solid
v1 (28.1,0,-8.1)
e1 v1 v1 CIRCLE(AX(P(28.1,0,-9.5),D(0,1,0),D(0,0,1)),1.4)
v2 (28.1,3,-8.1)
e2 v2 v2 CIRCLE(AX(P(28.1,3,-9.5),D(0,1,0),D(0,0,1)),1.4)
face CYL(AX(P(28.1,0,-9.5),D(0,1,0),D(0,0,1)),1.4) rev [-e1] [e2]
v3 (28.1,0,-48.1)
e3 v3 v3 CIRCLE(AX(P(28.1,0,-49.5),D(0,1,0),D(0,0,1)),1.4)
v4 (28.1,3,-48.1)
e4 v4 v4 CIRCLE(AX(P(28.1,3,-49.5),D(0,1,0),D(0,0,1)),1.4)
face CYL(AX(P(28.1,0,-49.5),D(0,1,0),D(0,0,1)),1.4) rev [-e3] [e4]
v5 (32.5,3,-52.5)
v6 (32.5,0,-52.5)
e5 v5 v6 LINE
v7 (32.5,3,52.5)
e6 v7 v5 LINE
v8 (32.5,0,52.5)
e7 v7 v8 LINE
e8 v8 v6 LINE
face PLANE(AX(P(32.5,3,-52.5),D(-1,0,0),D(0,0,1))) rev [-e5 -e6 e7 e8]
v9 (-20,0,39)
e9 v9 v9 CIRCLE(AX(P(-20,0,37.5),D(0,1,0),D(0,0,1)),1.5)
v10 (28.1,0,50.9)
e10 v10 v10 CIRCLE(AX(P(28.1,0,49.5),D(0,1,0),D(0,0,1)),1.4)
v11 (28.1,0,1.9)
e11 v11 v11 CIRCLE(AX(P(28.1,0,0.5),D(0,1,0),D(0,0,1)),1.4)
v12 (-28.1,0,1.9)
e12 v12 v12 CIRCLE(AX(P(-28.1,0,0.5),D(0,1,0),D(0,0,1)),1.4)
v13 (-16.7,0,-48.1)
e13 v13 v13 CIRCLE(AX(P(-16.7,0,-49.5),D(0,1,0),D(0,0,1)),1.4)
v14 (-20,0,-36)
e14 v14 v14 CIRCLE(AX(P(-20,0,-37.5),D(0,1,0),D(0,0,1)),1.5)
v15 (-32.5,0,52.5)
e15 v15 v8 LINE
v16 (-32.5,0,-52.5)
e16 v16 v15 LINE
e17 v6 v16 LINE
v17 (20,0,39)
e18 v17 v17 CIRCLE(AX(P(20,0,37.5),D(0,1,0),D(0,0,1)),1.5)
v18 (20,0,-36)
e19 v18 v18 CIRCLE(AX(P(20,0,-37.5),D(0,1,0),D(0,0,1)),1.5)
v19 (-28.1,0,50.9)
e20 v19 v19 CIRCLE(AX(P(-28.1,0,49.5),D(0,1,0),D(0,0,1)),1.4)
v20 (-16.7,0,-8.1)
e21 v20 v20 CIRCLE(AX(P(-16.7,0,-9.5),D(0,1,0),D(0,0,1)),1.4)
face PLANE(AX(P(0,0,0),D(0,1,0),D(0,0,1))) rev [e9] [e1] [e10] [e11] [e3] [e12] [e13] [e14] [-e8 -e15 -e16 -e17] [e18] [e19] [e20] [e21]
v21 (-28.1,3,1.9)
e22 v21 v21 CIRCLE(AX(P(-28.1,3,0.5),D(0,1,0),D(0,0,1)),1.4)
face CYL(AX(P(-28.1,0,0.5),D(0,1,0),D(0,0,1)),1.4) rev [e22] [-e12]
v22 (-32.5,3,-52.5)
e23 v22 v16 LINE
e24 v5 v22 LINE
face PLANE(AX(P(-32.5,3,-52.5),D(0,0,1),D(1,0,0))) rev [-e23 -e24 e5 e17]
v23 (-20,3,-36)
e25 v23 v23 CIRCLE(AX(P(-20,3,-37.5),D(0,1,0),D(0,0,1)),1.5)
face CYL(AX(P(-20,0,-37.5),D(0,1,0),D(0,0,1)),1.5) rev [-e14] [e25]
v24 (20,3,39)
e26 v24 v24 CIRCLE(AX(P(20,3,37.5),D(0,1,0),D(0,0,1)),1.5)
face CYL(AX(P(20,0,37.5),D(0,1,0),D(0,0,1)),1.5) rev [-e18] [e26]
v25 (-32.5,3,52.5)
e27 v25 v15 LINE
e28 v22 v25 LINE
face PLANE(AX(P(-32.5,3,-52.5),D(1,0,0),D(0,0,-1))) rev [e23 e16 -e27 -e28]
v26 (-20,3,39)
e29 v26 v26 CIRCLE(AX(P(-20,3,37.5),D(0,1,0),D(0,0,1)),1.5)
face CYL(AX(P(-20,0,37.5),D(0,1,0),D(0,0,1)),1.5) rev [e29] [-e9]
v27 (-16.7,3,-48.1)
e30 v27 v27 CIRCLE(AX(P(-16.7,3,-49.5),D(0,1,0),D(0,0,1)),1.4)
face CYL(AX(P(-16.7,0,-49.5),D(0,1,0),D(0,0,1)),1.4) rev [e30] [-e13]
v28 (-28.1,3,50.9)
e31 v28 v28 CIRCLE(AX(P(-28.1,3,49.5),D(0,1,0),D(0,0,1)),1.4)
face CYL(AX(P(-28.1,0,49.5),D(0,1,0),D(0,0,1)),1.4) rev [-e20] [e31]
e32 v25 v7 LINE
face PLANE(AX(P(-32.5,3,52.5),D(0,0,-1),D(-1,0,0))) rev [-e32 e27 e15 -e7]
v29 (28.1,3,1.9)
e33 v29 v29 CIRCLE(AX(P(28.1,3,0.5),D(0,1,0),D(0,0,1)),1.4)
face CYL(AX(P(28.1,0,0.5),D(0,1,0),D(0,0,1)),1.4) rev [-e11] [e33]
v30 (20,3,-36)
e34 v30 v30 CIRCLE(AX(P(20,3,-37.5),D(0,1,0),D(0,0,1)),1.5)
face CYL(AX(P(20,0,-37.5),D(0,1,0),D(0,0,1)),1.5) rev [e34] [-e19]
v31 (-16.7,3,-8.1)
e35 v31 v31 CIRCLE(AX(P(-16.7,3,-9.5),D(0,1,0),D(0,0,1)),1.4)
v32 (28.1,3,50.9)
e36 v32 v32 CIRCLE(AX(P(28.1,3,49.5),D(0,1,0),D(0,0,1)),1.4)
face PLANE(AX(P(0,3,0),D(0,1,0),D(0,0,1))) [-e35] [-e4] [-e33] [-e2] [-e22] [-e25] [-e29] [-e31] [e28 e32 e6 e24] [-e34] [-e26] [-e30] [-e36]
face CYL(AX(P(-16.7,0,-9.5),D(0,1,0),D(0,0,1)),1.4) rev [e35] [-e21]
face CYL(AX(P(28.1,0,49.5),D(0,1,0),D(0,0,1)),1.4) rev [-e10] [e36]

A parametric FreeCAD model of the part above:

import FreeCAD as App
import Part
import Sketcher
from FreeCAD import Vector
Q = App.Units.Quantity

doc = App.newDocument("Part")
body = doc.addObject("PartDesign::Body", "Body")

sketch1 = body.newObject("Sketcher::SketchObject", "Sketch")
sketch1.AttachmentSupport = (doc.getObject("XZ_Plane"), [""])
sketch1.MapMode = "FlatFace"
sketch1.addGeometry([
    Part.LineSegment(Vector(-32.5, -52.5, 0), Vector(-32.5, 52.5, 0)),
    Part.LineSegment(Vector(-32.5, 52.5, 0), Vector(32.5, 52.5, 0)),
    Part.LineSegment(Vector(32.5, 52.5, 0), Vector(32.5, -52.5, 0)),
    Part.LineSegment(Vector(32.5, -52.5, 0), Vector(-32.5, -52.5, 0)),
], False)
sketch1.addConstraint([
    Sketcher.Constraint("Coincident", 0, 2, 1, 1),
    Sketcher.Constraint("Coincident", 1, 2, 2, 1),
    Sketcher.Constraint("Coincident", 2, 2, 3, 1),
    Sketcher.Constraint("Coincident", 3, 2, 0, 1),
    Sketcher.Constraint("Vertical", 0),
    Sketcher.Constraint("Horizontal", 1),
    Sketcher.Constraint("Vertical", 2),
    Sketcher.Constraint("Horizontal", 3),
    Sketcher.Constraint("Symmetric", 0, 2, 2, 2, -1, 1),
    Sketcher.Constraint("DistanceX", 1, 1, 1, 2, Q("65 mm")),
    Sketcher.Constraint("DistanceY", 0, 1, 0, 2, Q("105 mm")),
])
pad1 = body.newObject("PartDesign::Pad", "Pad")
pad1.Profile = sketch1
pad1.Length = 3
pad1.Reversed = True

sketch2 = body.newObject("Sketcher::SketchObject", "Sketch001")
sketch2.AttachmentSupport = (doc.getObject("XZ_Plane"), [""])
sketch2.MapMode = "FlatFace"
sketch2.AttachmentOffset = App.Placement(Vector(0, 0, -3), App.Rotation())
sketch2.addGeometry([
    Part.Circle(Vector(-28.1, 49.5, 0), Vector(0, 0, 1), 1.4),
    Part.Circle(Vector(28.1, 49.5, 0), Vector(0, 0, 1), 1.4),
    Part.Circle(Vector(28.1, 0.5, 0), Vector(0, 0, 1), 1.4),
    Part.Circle(Vector(-28.1, 0.5, 0), Vector(0, 0, 1), 1.4),
], False)
sketch2.addConstraint([
    Sketcher.Constraint("Equal", 0, 1),
    Sketcher.Constraint("Equal", 1, 2),
    Sketcher.Constraint("Equal", 2, 3),
    Sketcher.Constraint("Symmetric", 0, 3, 1, 3, -2),
    Sketcher.Constraint("Symmetric", 2, 3, 3, 3, -2),
    Sketcher.Constraint("Vertical", 1, 3, 2, 3),
    Sketcher.Constraint("Diameter", 0, Q("2.8 mm")),
    Sketcher.Constraint("DistanceY", 2, 3, 1, 3, Q("49 mm")),
    Sketcher.Constraint("DistanceX", 0, 3, -1, 1, Q("28.1 mm")),
    Sketcher.Constraint("DistanceY", -1, 1, 0, 3, Q("49.5 mm")),
])
pocket1 = body.newObject("PartDesign::Pocket", "Pocket")
pocket1.Profile = sketch2
pocket1.Type = "ThroughAll"
pocket1.Reversed = True

sketch3 = body.newObject("Sketcher::SketchObject", "Sketch002")
sketch3.AttachmentSupport = (doc.getObject("XZ_Plane"), [""])
sketch3.MapMode = "FlatFace"
sketch3.AttachmentOffset = App.Placement(Vector(0, 0, -3), App.Rotation())
sketch3.addGeometry([
    Part.Circle(Vector(-16.7, -9.5, 0), Vector(0, 0, 1), 1.4),
    Part.Circle(Vector(28.1, -9.5, 0), Vector(0, 0, 1), 1.4),
    Part.Circle(Vector(28.1, -49.5, 0), Vector(0, 0, 1), 1.4),
    Part.Circle(Vector(-16.7, -49.5, 0), Vector(0, 0, 1), 1.4),
], False)
sketch3.addConstraint([
    Sketcher.Constraint("Equal", 0, 1),
    Sketcher.Constraint("Equal", 1, 2),
    Sketcher.Constraint("Equal", 2, 3),
    Sketcher.Constraint("Horizontal", 0, 3, 1, 3),
    Sketcher.Constraint("Horizontal", 2, 3, 3, 3),
    Sketcher.Constraint("Vertical", 1, 3, 2, 3),
    Sketcher.Constraint("Vertical", 0, 3, 3, 3),
    Sketcher.Constraint("Diameter", 0, Q("2.8 mm")),
    Sketcher.Constraint("DistanceY", 2, 3, 1, 3, Q("40 mm")),
    Sketcher.Constraint("DistanceX", 0, 3, -1, 1, Q("16.7 mm")),
    Sketcher.Constraint("DistanceY", 0, 3, -1, 1, Q("9.5 mm")),
    Sketcher.Constraint("DistanceX", -1, 1, 1, 3, Q("28.1 mm")),
])
pocket2 = body.newObject("PartDesign::Pocket", "Pocket001")
pocket2.Profile = sketch3
pocket2.Type = "ThroughAll"
pocket2.Reversed = True

sketch4 = body.newObject("Sketcher::SketchObject", "Sketch003")
sketch4.AttachmentSupport = (doc.getObject("XZ_Plane"), [""])
sketch4.MapMode = "FlatFace"
sketch4.AttachmentOffset = App.Placement(Vector(0, 0, -3), App.Rotation())
sketch4.addGeometry([
    Part.Circle(Vector(-20, 37.5, 0), Vector(0, 0, 1), 1.5),
    Part.Circle(Vector(20, 37.5, 0), Vector(0, 0, 1), 1.5),
    Part.Circle(Vector(20, -37.5, 0), Vector(0, 0, 1), 1.5),
    Part.Circle(Vector(-20, -37.5, 0), Vector(0, 0, 1), 1.5),
], False)
sketch4.addConstraint([
    Sketcher.Constraint("Equal", 0, 1),
    Sketcher.Constraint("Equal", 1, 2),
    Sketcher.Constraint("Equal", 2, 3),
    Sketcher.Constraint("Symmetric", 0, 3, 2, 3, -1, 1),
    Sketcher.Constraint("Symmetric", 1, 3, 3, 3, -1, 1),
    Sketcher.Constraint("Symmetric", 0, 3, 1, 3, -2),
    Sketcher.Constraint("Diameter", 0, Q("3 mm")),
    Sketcher.Constraint("DistanceX", 0, 3, -1, 1, Q("20 mm")),
    Sketcher.Constraint("DistanceY", 2, 3, 1, 3, Q("75 mm")),
])
pocket3 = body.newObject("PartDesign::Pocket", "Pocket002")
pocket3.Profile = sketch4
pocket3.Type = "ThroughAll"
pocket3.Reversed = True

doc.recompute()
